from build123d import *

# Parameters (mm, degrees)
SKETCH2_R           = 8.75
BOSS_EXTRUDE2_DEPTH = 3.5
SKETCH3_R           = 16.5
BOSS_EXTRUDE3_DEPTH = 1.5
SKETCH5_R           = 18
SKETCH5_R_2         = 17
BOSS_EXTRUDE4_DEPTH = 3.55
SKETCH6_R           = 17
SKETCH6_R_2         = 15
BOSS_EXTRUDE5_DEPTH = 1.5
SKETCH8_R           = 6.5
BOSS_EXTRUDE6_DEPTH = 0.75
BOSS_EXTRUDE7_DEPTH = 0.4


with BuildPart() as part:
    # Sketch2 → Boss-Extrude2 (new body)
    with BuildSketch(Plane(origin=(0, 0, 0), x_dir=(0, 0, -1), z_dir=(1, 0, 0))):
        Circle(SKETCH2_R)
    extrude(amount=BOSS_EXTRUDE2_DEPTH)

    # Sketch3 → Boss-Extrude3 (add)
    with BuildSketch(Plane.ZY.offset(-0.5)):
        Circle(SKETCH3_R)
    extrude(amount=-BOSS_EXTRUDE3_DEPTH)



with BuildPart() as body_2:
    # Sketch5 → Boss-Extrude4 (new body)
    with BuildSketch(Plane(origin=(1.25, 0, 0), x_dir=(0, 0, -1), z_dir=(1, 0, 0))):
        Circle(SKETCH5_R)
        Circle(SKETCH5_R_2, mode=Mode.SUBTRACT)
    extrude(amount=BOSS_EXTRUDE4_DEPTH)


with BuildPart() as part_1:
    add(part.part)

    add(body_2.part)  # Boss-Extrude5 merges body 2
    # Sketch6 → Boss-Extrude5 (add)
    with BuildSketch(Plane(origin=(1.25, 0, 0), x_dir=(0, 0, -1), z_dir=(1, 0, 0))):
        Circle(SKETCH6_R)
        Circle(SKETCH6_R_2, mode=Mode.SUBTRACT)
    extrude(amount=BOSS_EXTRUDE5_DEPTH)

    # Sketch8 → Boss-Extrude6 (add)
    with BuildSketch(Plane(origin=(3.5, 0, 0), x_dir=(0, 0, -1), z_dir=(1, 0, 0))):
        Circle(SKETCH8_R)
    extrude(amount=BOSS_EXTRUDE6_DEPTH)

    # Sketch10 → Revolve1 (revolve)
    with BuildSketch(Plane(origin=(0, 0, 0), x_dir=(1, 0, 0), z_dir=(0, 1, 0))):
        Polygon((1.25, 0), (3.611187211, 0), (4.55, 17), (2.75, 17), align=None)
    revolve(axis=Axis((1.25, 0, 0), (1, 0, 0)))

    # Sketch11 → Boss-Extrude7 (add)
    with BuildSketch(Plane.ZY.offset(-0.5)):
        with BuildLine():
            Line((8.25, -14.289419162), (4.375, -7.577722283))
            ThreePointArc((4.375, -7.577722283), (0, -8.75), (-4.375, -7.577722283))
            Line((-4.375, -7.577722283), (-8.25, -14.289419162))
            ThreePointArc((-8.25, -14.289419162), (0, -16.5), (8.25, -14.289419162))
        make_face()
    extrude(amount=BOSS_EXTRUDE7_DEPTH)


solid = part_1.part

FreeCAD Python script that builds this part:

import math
import FreeCAD as App
import Part
import Sketcher

V = App.Vector
Q = App.Units.Quantity


def add_polygon(sketch, points):
    """Adds a closed chain of lines whose ends are joined by coincident constraints."""
    first, n = sketch.GeometryCount, len(points)
    for a, b in zip(points, points[1:] + points[:1]):
        sketch.addGeometry(Part.LineSegment(App.Vector(*a, 0), App.Vector(*b, 0)), False)
    for i in range(n):
        sketch.addConstraint(Sketcher.Constraint("Coincident", first + i, 2, first + (i + 1) % n, 1))

doc = App.newDocument("Part")
body = doc.addObject("PartDesign::Body", "Body")

sketch1 = doc.addObject("Sketcher::SketchObject", "Sketch")
body.addObject(sketch1)
sketch1.AttachmentSupport = (doc.YZ_Plane, [""])
sketch1.MapMode = "FlatFace"
sketch1.addGeometry(Part.Circle(V(0, 0, 0), V(0, 0, 1), 9), False)
sketch1.addConstraint([
    Sketcher.Constraint("Coincident", 0, 3, -1, 1),
    Sketcher.Constraint("Diameter", 0, Q("17.5 mm")),
])
pad1 = doc.addObject("PartDesign::Pad", "Pad")
body.addObject(pad1)
pad1.Profile = sketch1
pad1.Length = 3.5

sketch2 = doc.addObject("Sketcher::SketchObject", "Sketch001")
body.addObject(sketch2)
sketch2.AttachmentSupport = (doc.YZ_Plane, [""])
sketch2.MapMode = "FlatFace"
sketch2.AttachmentOffset = App.Placement(V(0, 0, 0.5), App.Rotation())
sketch2.addGeometry(Part.Circle(V(0, 0, 0), V(0, 0, 1), 16), False)
sketch2.addConstraint([
    Sketcher.Constraint("Coincident", 0, 3, -1, 1),
    Sketcher.Constraint("Diameter", 0, Q("33 mm")),
])
pad2 = doc.addObject("PartDesign::Pad", "Pad001")
body.addObject(pad2)
pad2.Profile = sketch2
pad2.Length = 1.5
body2 = doc.addObject("PartDesign::Body", "Body001")

sketch3 = doc.addObject("Sketcher::SketchObject", "Sketch002")
body2.addObject(sketch3)
sketch3.AttachmentSupport = (doc.getObject("YZ_Plane001"), [""])
sketch3.MapMode = "FlatFace"
sketch3.AttachmentOffset = App.Placement(V(0, 0, 1.25), App.Rotation())
sketch3.addGeometry([
    Part.Circle(V(0, 0, 0), V(0, 0, 1), 18),
    Part.Circle(V(0, 0, 0), V(0, 0, 1), 17),
], False)
sketch3.addConstraint([
    Sketcher.Constraint("Coincident", 0, 3, -1, 1),
    Sketcher.Constraint("Coincident", 1, 3, -1, 1),
    Sketcher.Constraint("Diameter", 0, Q("36 mm")),
    Sketcher.Constraint("Diameter", 1, Q("34 mm")),
])
pad3 = doc.addObject("PartDesign::Pad", "Pad002")
body2.addObject(pad3)
pad3.Profile = sketch3
pad3.Length = 3.55
body.AllowCompound = True
doc.recompute()

boolean = doc.addObject("PartDesign::Boolean", "Boolean")
body.addObject(boolean)
boolean.Type = "Fuse"
boolean.addObjects([body2])

sketch4 = doc.addObject("Sketcher::SketchObject", "Sketch003")
body.addObject(sketch4)
sketch4.AttachmentSupport = (doc.YZ_Plane, [""])
sketch4.MapMode = "FlatFace"
sketch4.AttachmentOffset = App.Placement(V(0, 0, 1.25), App.Rotation())
sketch4.addGeometry([
    Part.Circle(V(0, 0, 0), V(0, 0, 1), 17),
    Part.Circle(V(0, 0, 0), V(0, 0, 1), 15),
], False)
sketch4.addConstraint([
    Sketcher.Constraint("Coincident", 0, 3, -1, 1),
    Sketcher.Constraint("Coincident", 1, 3, -1, 1),
    Sketcher.Constraint("Diameter", 0, Q("34 mm")),
    Sketcher.Constraint("Diameter", 1, Q("30 mm")),
])
pad4 = doc.addObject("PartDesign::Pad", "Pad003")
body.addObject(pad4)
pad4.Profile = sketch4
pad4.Length = 1.5

sketch5 = doc.addObject("Sketcher::SketchObject", "Sketch004")
body.addObject(sketch5)
sketch5.AttachmentSupport = (doc.YZ_Plane, [""])
sketch5.MapMode = "FlatFace"
sketch5.AttachmentOffset = App.Placement(V(0, 0, 3.5), App.Rotation())
sketch5.addGeometry(Part.Circle(V(0, 0, 0), V(0, 0, 1), 6), False)
sketch5.addConstraint([
    Sketcher.Constraint("Coincident", 0, 3, -1, 1),
    Sketcher.Constraint("Diameter", 0, Q("13 mm")),
])
pad5 = doc.addObject("PartDesign::Pad", "Pad004")
body.addObject(pad5)
pad5.Profile = sketch5
pad5.Length = 0.75

sketch6 = doc.addObject("Sketcher::SketchObject", "Sketch005")
body.addObject(sketch6)
sketch6.AttachmentSupport = (doc.XZ_Plane, [""])
sketch6.MapMode = "FlatFace"
add_polygon(sketch6, [(1.2, 0), (3.6, 0), (4.5, -17), (2.8, -17)])
sketch6.addConstraint([
    Sketcher.Constraint("Horizontal", 0),
    Sketcher.Constraint("Horizontal", 2),
    Sketcher.Constraint("PointOnObject", 0, 2, -1),
    Sketcher.Constraint("DistanceX", 2, 2, 2, 1, Q("1.8 mm")),
    Sketcher.Constraint("DistanceY", 1, 2, -1, 1, Q("17 mm")),
    Sketcher.Constraint("DistanceX", 3, 2, 2, 2, Q("1.5 mm")),
    Sketcher.Constraint("DistanceX", -1, 1, 1, 2, Q("4.55 mm")),
    Sketcher.Constraint("DistanceX", 0, 1, 0, 2, Q("2.361187 mm")),
])
revolution = doc.addObject("PartDesign::Revolution", "Revolution")
body.addObject(revolution)
revolution.Profile = sketch6
revolution.ReferenceAxis = (sketch6, ["H_Axis"])
revolution.Angle = 360

sketch7 = doc.addObject("Sketcher::SketchObject", "Sketch006")
body.addObject(sketch7)
sketch7.AttachmentSupport = (doc.YZ_Plane, [""])
sketch7.MapMode = "FlatFace"
sketch7.AttachmentOffset = App.Placement(V(0, 0, 0.5), App.Rotation())
sketch7.addGeometry([
    Part.LineSegment(V(-14, 8, 0), V(-8, 4, 0)),
    Part.ArcOfCircle(Part.Circle(V(0, 0, 0), V(0, 0, 1), 9), math.radians(150), math.radians(210)),
    Part.LineSegment(V(-8, -4, 0), V(-14, -8, 0)),
    Part.ArcOfCircle(Part.Circle(V(0, 0, 0), V(0, 0, 1), 16), math.radians(150), math.radians(210)),
], False)
sketch7.addConstraint([
    Sketcher.Constraint("Coincident", 0, 2, 1, 1),
    Sketcher.Constraint("Coincident", 1, 2, 2, 1),
    Sketcher.Constraint("Coincident", 2, 2, 3, 2),
    Sketcher.Constraint("Coincident", 3, 1, 0, 1),
    Sketcher.Constraint("Coincident", 1, 3, -1, 1),
    Sketcher.Constraint("Coincident", 3, 3, -1, 1),
    Sketcher.Constraint("Vertical", 0, 2, 1, 2),
    Sketcher.Constraint("Vertical", 2, 2, 3, 1),
    Sketcher.Constraint("Radius", 3, Q("16.5 mm")),
    Sketcher.Constraint("Angle", 0, Q("-30 deg")),
    Sketcher.Constraint("Radius", 1, Q("8.75 mm")),
    Sketcher.Constraint("DistanceY", 2, 2, 3, 1, Q("16.5 mm")),
])
pad6 = doc.addObject("PartDesign::Pad", "Pad005")
body.addObject(pad6)
pad6.Profile = sketch7
pad6.Length = 0.4
pad6.Reversed = True

doc.recompute()
